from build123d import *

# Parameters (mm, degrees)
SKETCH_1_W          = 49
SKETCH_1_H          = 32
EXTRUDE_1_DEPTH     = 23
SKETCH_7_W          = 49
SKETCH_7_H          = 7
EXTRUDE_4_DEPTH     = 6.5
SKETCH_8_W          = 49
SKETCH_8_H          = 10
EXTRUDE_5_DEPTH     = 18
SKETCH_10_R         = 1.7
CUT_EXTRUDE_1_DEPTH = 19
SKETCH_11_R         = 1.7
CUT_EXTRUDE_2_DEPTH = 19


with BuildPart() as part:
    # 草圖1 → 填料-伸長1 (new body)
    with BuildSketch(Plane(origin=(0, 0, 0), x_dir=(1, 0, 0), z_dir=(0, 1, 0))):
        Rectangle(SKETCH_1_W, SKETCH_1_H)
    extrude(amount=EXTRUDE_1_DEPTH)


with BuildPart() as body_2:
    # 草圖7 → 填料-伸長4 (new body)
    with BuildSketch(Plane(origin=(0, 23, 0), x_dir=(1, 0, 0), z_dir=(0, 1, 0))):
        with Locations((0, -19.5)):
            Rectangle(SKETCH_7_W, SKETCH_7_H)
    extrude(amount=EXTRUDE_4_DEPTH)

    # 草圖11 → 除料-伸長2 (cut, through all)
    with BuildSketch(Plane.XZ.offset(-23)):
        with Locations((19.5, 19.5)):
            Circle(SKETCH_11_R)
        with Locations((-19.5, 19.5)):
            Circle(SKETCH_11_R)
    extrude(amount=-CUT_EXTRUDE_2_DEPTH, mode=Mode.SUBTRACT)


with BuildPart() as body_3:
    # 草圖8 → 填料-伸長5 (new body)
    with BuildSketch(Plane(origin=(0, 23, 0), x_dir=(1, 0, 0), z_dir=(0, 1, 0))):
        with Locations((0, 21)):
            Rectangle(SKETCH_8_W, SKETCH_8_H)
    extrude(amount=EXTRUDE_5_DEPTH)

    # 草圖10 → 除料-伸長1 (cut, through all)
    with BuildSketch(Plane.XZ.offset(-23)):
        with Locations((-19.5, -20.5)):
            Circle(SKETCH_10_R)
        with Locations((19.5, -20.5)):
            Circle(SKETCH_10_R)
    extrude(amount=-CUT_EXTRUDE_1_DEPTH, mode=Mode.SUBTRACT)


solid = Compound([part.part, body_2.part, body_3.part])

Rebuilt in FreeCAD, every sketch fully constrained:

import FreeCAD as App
import Part
import Sketcher

V = App.Vector

doc = App.newDocument("Part")
params = doc.addObject("Spreadsheet::Sheet", "Params")
for row, (alias, value) in enumerate([
    ("sketch1_width", "49 mm"),
    ("sketch1_height", "32 mm"),
    ("pad1_length", "23 mm"),
    ("sketch2_width", "49 mm"),
    ("sketch2_height", "7 mm"),
    ("pad2_length", "6.5 mm"),
    ("sketch3_diameter", "3.4 mm"),
    ("sketch4_width", "49 mm"),
    ("sketch4_height", "10 mm"),
    ("pad3_length", "18 mm"),
    ("sketch5_diameter", "3.4 mm"),
], start=1):
    params.set(f"A{row}", alias)
    params.set(f"B{row}", "=" + value)
    params.setAlias(f"B{row}", alias)

body = doc.addObject("PartDesign::Body", "Body")

sketch1 = doc.addObject("Sketcher::SketchObject", "Sketch")
body.addObject(sketch1)
sketch1.AttachmentSupport = (doc.XZ_Plane, [""])
sketch1.MapMode = "FlatFace"
sketch1.addGeometry([
    Part.LineSegment(V(-24, -16, 0), V(-24, 16, 0)),
    Part.LineSegment(V(-24, 16, 0), V(24, 16, 0)),
    Part.LineSegment(V(24, 16, 0), V(24, -16, 0)),
    Part.LineSegment(V(24, -16, 0), V(-24, -16, 0)),
], False)
sketch1.addConstraint([
    Sketcher.Constraint("Coincident", 0, 2, 1, 1),
    Sketcher.Constraint("Coincident", 1, 2, 2, 1),
    Sketcher.Constraint("Coincident", 2, 2, 3, 1),
    Sketcher.Constraint("Coincident", 3, 2, 0, 1),
    Sketcher.Constraint("Vertical", 0),
    Sketcher.Constraint("Horizontal", 1),
    Sketcher.Constraint("Vertical", 2),
    Sketcher.Constraint("Horizontal", 3),
    Sketcher.Constraint("Symmetric", 0, 2, 2, 2, -1, 1),
    Sketcher.Constraint("DistanceX", 1, 1, 1, 2, 49.0),
    Sketcher.Constraint("DistanceY", 0, 1, 0, 2, 32.0),
])
sketch1.setExpression("Constraints[9]", "Params.sketch1_width")
sketch1.setExpression("Constraints[10]", "Params.sketch1_height")
pad1 = doc.addObject("PartDesign::Pad", "Pad")
body.addObject(pad1)
pad1.Profile = sketch1
pad1.setExpression("Length", "Params.pad1_length")
pad1.Reversed = True
body2 = doc.addObject("PartDesign::Body", "Body001")

sketch2 = doc.addObject("Sketcher::SketchObject", "Sketch001")
body2.addObject(sketch2)
sketch2.AttachmentSupport = (doc.getObject("XZ_Plane001"), [""])
sketch2.MapMode = "FlatFace"
sketch2.AttachmentOffset = App.Placement(V(0, 0, -23), App.Rotation())
sketch2.addGeometry([
    Part.LineSegment(V(-24, 16, 0), V(-24, 23, 0)),
    Part.LineSegment(V(-24, 23, 0), V(24, 23, 0)),
    Part.LineSegment(V(24, 23, 0), V(24, 16, 0)),
    Part.LineSegment(V(24, 16, 0), V(-24, 16, 0)),
], False)
sketch2.addConstraint([
    Sketcher.Constraint("Coincident", 0, 2, 1, 1),
    Sketcher.Constraint("Coincident", 1, 2, 2, 1),
    Sketcher.Constraint("Coincident", 2, 2, 3, 1),
    Sketcher.Constraint("Coincident", 3, 2, 0, 1),
    Sketcher.Constraint("Vertical", 0),
    Sketcher.Constraint("Horizontal", 1),
    Sketcher.Constraint("Vertical", 2),
    Sketcher.Constraint("Horizontal", 3),
    Sketcher.Constraint("DistanceX", 1, 1, 1, 2, 49.0),
    Sketcher.Constraint("DistanceY", 0, 1, 0, 2, 7.0),
    Sketcher.Constraint("DistanceY", -1, 1, 0, 2, 23.0),
    Sketcher.Constraint("DistanceX", 0, 2, -1, 1, 24.5),
])
sketch2.setExpression("Constraints[8]", "Params.sketch2_width")
sketch2.setExpression("Constraints[9]", "Params.sketch2_height")
pad2 = doc.addObject("PartDesign::Pad", "Pad001")
body2.addObject(pad2)
pad2.Profile = sketch2
pad2.setExpression("Length", "Params.pad2_length")
pad2.Reversed = True

sketch3 = doc.addObject("Sketcher::SketchObject", "Sketch002")
body2.addObject(sketch3)
sketch3.AttachmentSupport = (doc.getObject("XZ_Plane001"), [""])
sketch3.MapMode = "FlatFace"
sketch3.AttachmentOffset = App.Placement(V(0, 0, -23), App.Rotation())
sketch3.addGeometry([
    Part.Circle(V(19.5, 19.5, 0), V(0, 0, 1), 1.7),
    Part.Circle(V(-19.5, 19.5, 0), V(0, 0, 1), 1.7),
], False)
sketch3.addConstraint([
    Sketcher.Constraint("Equal", 0, 1),
    Sketcher.Constraint("Symmetric", 0, 3, 1, 3, -2),
    Sketcher.Constraint("Diameter", 0, 3.4),
    Sketcher.Constraint("DistanceX", 1, 3, 0, 3, 39.0),
    Sketcher.Constraint("DistanceY", -1, 1, 0, 3, 19.5),
])
sketch3.setExpression("Constraints[2]", "Params.sketch3_diameter")
pocket1 = doc.addObject("PartDesign::Pocket", "Pocket")
body2.addObject(pocket1)
pocket1.Profile = sketch3
pocket1.Type = "ThroughAll"
body3 = doc.addObject("PartDesign::Body", "Body002")

sketch4 = doc.addObject("Sketcher::SketchObject", "Sketch003")
body3.addObject(sketch4)
sketch4.AttachmentSupport = (doc.getObject("XZ_Plane002"), [""])
sketch4.MapMode = "FlatFace"
sketch4.AttachmentOffset = App.Placement(V(0, 0, -23), App.Rotation())
sketch4.addGeometry([
    Part.LineSegment(V(-24, -26, 0), V(-24, -16, 0)),
    Part.LineSegment(V(-24, -16, 0), V(24, -16, 0)),
    Part.LineSegment(V(24, -16, 0), V(24, -26, 0)),
    Part.LineSegment(V(24, -26, 0), V(-24, -26, 0)),
], False)
sketch4.addConstraint([
    Sketcher.Constraint("Coincident", 0, 2, 1, 1),
    Sketcher.Constraint("Coincident", 1, 2, 2, 1),
    Sketcher.Constraint("Coincident", 2, 2, 3, 1),
    Sketcher.Constraint("Coincident", 3, 2, 0, 1),
    Sketcher.Constraint("Vertical", 0),
    Sketcher.Constraint("Horizontal", 1),
    Sketcher.Constraint("Vertical", 2),
    Sketcher.Constraint("Horizontal", 3),
    Sketcher.Constraint("DistanceX", 1, 1, 1, 2, 49.0),
    Sketcher.Constraint("DistanceY", 0, 1, 0, 2, 10.0),
    Sketcher.Constraint("DistanceY", 0, 2, -1, 1, 16.0),
    Sketcher.Constraint("DistanceX", 0, 2, -1, 1, 24.5),
])
sketch4.setExpression("Constraints[8]", "Params.sketch4_width")
sketch4.setExpression("Constraints[9]", "Params.sketch4_height")
pad3 = doc.addObject("PartDesign::Pad", "Pad002")
body3.addObject(pad3)
pad3.Profile = sketch4
pad3.setExpression("Length", "Params.pad3_length")
pad3.Reversed = True

sketch5 = doc.addObject("Sketcher::SketchObject", "Sketch004")
body3.addObject(sketch5)
sketch5.AttachmentSupport = (doc.getObject("XZ_Plane002"), [""])
sketch5.MapMode = "FlatFace"
sketch5.AttachmentOffset = App.Placement(V(0, 0, -23), App.Rotation())
sketch5.addGeometry([
    Part.Circle(V(-19.5, -20.5, 0), V(0, 0, 1), 1.7),
    Part.Circle(V(19.5, -20.5, 0), V(0, 0, 1), 1.7),
], False)
sketch5.addConstraint([
    Sketcher.Constraint("Equal", 0, 1),
    Sketcher.Constraint("Symmetric", 0, 3, 1, 3, -2),
    Sketcher.Constraint("Diameter", 0, 3.4),
    Sketcher.Constraint("DistanceX", 0, 3, 1, 3, 39.0),
    Sketcher.Constraint("DistanceY", 0, 3, -1, 1, 20.5),
])
sketch5.setExpression("Constraints[2]", "Params.sketch5_diameter")
pocket2 = doc.addObject("PartDesign::Pocket", "Pocket001")
body3.addObject(pocket2)
pocket2.Profile = sketch5
pocket2.Type = "ThroughAll"

doc.recompute()
